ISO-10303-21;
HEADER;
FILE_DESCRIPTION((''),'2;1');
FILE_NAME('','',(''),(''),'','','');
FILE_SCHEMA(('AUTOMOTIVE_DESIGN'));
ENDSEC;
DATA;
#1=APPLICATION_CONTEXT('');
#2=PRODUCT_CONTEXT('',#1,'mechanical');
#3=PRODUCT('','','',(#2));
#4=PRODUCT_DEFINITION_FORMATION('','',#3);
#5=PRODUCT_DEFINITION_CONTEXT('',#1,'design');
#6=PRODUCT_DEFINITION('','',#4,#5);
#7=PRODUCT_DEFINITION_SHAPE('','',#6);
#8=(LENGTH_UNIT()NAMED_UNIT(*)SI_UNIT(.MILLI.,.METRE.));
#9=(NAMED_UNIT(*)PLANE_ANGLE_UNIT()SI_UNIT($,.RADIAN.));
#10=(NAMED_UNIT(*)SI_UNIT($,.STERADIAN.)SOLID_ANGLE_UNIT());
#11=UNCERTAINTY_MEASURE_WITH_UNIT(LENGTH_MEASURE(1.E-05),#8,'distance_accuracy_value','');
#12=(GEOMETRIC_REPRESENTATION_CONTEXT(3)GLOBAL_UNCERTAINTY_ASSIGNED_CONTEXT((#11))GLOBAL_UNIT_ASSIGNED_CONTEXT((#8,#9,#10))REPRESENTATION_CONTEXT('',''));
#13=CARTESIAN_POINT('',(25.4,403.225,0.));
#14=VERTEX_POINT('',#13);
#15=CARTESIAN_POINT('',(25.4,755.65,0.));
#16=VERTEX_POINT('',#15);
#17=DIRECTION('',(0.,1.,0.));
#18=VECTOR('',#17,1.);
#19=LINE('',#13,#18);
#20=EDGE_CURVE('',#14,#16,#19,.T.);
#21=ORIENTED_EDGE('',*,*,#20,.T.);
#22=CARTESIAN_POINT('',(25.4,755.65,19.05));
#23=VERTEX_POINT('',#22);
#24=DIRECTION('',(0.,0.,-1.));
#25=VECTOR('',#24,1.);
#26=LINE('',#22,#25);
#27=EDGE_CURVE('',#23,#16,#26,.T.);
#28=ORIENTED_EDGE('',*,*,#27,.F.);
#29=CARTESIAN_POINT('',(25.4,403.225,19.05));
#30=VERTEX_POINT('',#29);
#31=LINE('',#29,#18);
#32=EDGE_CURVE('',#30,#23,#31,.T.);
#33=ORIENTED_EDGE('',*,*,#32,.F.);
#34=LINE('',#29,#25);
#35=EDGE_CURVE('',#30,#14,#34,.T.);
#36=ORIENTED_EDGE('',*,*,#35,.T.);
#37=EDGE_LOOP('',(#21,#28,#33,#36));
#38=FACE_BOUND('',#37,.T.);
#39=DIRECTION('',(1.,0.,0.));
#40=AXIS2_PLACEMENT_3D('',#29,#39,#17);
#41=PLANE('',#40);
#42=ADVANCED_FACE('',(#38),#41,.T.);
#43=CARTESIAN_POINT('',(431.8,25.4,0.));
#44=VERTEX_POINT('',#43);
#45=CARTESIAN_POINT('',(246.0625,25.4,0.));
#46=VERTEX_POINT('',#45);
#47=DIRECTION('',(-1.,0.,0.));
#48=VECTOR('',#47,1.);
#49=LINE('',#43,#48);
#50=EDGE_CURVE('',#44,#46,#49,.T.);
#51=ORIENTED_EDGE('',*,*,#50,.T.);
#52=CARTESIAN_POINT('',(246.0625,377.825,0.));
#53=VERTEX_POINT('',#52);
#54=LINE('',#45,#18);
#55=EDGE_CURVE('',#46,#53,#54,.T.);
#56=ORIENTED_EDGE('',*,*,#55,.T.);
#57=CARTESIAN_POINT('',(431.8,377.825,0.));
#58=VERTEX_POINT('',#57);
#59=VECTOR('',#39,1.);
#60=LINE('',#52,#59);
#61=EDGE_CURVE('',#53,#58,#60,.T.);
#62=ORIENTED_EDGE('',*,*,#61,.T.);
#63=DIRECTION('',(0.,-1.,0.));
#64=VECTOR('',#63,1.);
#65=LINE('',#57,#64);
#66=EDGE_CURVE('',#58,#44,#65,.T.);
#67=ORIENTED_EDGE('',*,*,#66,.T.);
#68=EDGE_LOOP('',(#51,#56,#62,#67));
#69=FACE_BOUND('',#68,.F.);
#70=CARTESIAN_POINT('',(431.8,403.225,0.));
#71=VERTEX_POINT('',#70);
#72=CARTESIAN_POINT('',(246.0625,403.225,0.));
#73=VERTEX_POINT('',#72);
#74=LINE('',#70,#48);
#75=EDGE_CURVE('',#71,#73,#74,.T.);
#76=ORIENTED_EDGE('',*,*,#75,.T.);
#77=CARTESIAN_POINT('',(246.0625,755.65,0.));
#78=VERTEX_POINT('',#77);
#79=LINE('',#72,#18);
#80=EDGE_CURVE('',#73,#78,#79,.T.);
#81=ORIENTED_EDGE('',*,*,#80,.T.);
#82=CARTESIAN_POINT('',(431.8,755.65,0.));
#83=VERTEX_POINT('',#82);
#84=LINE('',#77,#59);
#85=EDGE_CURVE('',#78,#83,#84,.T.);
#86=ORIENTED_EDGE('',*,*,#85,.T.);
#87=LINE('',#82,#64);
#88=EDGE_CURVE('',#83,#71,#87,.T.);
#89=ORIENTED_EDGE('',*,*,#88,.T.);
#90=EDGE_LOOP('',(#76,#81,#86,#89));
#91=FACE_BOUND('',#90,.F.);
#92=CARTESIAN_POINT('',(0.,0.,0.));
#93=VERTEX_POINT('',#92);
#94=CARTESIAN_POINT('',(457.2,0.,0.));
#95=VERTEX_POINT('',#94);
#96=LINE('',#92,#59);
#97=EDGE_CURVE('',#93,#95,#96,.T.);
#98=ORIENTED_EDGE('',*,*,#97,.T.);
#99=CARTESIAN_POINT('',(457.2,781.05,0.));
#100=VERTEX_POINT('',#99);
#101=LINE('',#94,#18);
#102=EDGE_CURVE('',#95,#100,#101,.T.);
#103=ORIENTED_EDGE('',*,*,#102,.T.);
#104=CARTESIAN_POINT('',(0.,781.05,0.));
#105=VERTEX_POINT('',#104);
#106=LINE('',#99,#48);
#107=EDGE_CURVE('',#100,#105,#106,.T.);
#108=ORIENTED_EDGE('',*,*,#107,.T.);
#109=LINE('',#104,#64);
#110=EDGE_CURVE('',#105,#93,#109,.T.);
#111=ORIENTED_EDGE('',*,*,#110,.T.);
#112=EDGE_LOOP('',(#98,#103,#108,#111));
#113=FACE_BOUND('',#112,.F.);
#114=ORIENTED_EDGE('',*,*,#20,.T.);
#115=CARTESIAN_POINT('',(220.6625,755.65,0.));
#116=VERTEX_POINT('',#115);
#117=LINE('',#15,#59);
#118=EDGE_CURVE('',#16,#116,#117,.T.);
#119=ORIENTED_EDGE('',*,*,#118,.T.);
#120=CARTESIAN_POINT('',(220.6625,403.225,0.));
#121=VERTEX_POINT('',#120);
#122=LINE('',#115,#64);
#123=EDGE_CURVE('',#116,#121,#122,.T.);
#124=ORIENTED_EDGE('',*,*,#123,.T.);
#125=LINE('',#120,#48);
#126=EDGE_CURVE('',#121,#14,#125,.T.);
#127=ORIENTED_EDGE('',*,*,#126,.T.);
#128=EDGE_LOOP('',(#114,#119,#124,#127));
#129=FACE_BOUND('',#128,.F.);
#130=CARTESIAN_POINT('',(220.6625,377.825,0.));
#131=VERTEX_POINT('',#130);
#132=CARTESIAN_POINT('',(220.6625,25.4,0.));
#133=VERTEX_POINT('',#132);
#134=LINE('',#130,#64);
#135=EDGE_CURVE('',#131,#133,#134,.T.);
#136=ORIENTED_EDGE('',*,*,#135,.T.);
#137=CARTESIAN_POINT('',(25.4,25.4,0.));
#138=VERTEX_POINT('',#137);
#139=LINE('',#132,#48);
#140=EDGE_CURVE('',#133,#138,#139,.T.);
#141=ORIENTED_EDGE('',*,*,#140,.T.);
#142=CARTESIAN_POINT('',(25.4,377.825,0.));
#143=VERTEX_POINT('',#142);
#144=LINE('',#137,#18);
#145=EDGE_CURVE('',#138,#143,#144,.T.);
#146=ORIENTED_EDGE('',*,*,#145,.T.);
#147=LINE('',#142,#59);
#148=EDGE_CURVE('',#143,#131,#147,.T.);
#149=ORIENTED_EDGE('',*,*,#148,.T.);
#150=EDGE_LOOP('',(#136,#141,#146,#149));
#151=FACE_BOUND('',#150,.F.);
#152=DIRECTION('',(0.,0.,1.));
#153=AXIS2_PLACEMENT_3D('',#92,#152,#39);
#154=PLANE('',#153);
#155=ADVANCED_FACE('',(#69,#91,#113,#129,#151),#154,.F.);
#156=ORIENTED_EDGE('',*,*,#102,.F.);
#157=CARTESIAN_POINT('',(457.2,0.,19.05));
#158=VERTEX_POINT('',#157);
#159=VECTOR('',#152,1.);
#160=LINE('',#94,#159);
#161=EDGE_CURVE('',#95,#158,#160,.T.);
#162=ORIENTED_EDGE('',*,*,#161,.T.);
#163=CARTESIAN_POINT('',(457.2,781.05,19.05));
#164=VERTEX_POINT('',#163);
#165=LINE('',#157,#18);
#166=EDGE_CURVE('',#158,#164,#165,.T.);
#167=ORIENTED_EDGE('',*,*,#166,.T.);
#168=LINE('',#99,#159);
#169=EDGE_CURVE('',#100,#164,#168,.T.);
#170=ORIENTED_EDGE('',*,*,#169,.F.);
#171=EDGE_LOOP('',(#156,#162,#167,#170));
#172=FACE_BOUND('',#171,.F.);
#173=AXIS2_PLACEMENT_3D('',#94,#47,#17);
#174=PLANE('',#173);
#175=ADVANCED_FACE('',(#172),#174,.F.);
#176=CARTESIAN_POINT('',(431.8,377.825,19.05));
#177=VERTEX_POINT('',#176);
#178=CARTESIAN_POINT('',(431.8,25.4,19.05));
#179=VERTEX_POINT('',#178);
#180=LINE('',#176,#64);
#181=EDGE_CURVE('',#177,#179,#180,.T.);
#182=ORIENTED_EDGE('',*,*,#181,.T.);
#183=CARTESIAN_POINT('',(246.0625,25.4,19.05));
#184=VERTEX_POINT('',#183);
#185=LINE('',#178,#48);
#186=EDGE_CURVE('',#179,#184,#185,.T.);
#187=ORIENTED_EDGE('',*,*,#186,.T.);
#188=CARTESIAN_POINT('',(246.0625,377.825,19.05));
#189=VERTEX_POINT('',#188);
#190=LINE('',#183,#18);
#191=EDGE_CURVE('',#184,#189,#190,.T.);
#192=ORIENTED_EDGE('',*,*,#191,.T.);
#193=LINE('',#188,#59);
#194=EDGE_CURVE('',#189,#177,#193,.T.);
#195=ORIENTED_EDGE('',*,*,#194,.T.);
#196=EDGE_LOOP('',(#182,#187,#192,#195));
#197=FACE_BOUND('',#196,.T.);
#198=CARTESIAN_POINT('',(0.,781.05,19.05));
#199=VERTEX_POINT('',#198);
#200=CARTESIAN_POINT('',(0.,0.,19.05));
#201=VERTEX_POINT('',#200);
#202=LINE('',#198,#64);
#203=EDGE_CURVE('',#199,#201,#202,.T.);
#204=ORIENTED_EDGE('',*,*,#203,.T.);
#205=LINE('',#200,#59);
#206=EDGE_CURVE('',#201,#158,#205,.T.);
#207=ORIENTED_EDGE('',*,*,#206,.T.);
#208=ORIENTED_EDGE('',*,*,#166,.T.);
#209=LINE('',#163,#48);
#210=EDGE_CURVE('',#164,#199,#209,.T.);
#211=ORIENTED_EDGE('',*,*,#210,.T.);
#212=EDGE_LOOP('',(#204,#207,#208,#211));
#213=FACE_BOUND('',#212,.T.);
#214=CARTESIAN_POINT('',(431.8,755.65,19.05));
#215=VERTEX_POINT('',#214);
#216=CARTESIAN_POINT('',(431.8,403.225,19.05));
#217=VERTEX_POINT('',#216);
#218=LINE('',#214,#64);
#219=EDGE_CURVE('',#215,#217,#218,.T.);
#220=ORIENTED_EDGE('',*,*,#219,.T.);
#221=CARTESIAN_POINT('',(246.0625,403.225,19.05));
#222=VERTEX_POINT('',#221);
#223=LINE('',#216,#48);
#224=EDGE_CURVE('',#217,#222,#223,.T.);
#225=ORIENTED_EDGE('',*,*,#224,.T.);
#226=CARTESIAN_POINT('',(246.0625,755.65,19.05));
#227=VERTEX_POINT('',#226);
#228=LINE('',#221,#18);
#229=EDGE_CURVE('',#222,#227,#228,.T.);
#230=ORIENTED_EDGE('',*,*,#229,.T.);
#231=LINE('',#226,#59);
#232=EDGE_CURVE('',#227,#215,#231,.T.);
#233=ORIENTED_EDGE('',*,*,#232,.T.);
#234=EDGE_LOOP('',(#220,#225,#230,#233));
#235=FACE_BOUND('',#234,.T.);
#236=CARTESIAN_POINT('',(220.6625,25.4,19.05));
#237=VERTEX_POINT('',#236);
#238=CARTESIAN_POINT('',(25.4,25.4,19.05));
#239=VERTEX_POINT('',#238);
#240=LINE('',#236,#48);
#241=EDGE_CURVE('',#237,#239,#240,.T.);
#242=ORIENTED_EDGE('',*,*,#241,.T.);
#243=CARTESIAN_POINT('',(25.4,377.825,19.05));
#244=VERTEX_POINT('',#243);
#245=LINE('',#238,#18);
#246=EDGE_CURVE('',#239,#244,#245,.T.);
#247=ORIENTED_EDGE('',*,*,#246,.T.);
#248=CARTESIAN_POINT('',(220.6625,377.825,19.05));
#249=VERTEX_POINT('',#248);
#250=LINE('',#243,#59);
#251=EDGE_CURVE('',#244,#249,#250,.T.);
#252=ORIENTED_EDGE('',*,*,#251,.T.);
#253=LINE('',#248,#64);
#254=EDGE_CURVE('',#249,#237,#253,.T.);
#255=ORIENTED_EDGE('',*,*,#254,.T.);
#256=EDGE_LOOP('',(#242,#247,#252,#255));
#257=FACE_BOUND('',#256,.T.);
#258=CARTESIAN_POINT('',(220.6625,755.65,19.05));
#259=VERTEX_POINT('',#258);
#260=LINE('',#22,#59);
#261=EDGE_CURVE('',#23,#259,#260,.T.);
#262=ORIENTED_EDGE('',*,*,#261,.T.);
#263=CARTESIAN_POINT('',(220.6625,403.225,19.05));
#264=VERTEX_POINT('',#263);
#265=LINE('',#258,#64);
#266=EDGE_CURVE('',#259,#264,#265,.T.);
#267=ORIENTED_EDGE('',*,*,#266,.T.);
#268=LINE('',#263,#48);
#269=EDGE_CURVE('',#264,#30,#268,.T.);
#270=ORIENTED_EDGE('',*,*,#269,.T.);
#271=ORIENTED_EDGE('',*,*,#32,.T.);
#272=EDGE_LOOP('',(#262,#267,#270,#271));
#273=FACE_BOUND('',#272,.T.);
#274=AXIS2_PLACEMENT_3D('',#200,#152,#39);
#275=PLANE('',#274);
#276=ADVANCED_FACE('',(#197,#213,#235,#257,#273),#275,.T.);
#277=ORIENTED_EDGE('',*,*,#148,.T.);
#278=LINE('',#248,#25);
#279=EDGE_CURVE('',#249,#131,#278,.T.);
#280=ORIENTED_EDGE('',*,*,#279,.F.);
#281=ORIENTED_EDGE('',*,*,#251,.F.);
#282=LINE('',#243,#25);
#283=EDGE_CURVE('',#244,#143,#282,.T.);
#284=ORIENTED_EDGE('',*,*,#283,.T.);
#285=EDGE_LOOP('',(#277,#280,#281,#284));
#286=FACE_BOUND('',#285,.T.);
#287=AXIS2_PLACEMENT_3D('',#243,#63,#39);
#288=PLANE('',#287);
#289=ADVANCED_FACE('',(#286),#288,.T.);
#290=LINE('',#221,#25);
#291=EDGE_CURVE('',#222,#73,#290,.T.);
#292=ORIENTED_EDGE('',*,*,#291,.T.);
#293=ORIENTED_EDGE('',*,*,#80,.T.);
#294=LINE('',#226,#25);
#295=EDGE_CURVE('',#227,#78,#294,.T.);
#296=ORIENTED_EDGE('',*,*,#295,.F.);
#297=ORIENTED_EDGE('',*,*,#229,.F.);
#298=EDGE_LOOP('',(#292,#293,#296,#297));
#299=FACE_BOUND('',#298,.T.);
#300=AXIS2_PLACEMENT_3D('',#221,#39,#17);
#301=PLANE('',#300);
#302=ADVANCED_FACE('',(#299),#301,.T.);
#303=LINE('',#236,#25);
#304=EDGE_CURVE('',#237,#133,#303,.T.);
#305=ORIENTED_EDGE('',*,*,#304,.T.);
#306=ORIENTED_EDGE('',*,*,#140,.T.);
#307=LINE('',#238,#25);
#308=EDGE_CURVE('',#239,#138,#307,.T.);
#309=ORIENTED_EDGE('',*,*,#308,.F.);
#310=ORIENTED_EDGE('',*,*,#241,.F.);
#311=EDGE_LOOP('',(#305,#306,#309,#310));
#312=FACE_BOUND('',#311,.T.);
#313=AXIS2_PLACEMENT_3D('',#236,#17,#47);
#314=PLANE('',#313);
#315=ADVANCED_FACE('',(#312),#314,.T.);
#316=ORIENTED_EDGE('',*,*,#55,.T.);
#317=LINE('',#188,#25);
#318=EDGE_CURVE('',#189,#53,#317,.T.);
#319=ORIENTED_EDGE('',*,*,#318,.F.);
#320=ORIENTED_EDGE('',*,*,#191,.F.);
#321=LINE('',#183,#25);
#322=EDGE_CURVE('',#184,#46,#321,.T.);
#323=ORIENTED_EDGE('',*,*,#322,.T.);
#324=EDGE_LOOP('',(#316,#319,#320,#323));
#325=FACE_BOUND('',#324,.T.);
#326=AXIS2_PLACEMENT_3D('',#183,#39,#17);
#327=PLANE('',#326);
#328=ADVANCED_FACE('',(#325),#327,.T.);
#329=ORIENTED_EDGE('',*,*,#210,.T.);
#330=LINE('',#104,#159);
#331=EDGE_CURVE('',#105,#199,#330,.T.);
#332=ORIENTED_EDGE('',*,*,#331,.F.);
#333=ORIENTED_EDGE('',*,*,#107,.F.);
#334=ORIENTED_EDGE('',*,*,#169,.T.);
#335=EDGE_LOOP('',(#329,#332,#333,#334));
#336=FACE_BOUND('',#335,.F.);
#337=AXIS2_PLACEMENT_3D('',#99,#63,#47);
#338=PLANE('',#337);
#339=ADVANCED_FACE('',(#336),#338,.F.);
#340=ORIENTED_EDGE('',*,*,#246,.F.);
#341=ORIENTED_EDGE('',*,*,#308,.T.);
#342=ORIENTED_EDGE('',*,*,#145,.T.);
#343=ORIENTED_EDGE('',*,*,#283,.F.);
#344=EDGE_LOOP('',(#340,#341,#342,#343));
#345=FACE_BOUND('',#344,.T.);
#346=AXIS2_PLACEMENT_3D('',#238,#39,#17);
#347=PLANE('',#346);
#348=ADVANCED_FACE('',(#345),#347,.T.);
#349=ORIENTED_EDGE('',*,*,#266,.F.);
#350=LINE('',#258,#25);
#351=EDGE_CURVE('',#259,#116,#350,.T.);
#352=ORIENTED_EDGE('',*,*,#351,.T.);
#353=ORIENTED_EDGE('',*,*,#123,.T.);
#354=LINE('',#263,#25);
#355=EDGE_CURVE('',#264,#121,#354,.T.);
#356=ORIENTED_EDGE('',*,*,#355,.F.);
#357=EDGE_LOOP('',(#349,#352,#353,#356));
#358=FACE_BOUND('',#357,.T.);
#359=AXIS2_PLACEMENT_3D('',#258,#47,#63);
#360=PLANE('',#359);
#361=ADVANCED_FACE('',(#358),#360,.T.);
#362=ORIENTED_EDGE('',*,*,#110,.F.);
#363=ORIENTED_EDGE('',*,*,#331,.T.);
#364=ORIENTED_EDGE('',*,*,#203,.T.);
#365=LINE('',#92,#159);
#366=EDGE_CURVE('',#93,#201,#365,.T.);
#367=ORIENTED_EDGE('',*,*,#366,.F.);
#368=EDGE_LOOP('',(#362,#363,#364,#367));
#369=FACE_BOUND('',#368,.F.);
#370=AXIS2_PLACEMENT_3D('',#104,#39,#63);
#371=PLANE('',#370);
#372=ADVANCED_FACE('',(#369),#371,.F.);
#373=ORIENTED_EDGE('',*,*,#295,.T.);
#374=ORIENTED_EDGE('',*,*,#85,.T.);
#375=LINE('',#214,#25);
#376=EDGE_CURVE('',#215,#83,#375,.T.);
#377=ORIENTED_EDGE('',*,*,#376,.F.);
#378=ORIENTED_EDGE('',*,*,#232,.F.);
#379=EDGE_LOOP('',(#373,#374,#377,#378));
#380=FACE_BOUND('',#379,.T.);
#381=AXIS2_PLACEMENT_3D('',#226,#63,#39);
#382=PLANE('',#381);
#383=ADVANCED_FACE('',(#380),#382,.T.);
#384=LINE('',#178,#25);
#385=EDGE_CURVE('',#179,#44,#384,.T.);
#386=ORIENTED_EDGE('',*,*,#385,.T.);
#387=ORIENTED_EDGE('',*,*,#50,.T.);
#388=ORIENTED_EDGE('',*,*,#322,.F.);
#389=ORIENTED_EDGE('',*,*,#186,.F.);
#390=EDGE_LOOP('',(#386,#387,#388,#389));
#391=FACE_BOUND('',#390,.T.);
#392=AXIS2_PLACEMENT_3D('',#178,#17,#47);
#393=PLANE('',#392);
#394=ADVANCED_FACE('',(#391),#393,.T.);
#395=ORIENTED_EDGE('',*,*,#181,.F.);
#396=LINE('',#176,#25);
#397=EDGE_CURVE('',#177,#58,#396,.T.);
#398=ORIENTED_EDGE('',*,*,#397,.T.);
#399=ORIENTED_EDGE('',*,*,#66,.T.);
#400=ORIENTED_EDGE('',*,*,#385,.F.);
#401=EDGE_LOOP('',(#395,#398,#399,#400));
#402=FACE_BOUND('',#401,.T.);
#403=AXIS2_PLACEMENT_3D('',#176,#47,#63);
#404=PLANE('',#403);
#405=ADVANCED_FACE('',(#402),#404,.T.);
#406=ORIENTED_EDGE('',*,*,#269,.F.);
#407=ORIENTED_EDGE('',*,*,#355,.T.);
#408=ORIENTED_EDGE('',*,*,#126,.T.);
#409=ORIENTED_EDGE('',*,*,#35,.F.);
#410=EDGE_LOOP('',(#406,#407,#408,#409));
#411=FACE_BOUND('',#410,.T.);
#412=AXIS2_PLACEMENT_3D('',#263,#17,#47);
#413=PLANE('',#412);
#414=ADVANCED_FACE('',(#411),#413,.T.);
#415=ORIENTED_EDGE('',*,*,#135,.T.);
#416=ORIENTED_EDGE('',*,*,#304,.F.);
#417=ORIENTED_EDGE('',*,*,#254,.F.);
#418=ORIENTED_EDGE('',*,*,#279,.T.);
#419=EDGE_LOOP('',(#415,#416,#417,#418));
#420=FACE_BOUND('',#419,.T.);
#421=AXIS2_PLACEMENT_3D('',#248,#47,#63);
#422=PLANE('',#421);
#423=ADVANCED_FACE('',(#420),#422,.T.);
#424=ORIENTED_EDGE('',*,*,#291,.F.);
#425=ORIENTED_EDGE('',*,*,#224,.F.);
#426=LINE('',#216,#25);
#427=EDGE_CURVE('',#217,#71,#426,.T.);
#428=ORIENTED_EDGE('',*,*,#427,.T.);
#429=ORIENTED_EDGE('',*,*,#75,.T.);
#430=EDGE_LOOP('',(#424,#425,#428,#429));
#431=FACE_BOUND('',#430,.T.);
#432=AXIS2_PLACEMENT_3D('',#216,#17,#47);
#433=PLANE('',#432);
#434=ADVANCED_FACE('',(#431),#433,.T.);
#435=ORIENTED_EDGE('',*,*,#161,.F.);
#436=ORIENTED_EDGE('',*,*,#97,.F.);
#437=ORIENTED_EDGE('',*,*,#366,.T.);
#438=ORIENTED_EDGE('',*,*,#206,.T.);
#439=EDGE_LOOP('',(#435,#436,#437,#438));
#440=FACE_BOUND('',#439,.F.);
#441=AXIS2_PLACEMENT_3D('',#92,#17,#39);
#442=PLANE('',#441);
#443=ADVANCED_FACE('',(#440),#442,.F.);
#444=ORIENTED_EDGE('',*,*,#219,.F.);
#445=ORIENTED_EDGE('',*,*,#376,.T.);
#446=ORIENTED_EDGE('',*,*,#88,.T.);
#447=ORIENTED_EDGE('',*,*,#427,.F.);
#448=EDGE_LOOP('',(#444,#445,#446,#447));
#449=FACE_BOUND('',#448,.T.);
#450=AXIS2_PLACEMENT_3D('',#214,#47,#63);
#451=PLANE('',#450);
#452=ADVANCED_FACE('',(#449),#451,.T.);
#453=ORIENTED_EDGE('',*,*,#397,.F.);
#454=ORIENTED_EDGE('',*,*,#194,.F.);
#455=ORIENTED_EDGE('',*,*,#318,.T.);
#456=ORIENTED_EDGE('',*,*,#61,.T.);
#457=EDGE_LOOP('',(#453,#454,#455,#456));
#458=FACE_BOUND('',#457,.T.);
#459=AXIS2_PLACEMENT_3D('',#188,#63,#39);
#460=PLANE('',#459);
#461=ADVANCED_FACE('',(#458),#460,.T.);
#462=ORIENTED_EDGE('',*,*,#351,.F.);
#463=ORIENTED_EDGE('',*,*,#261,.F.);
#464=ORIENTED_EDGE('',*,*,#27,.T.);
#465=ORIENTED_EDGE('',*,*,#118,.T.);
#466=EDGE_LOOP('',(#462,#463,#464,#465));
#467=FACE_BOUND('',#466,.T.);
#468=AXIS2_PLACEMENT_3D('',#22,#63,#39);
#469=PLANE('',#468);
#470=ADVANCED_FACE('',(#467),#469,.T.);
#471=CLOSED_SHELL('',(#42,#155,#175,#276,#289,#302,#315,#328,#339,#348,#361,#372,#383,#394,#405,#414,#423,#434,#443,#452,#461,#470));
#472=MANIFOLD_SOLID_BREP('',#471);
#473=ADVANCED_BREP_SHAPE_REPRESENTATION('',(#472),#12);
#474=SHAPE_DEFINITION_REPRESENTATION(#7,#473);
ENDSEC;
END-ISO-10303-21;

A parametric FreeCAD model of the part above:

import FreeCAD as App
import Part
import Sketcher

V = App.Vector
Q = App.Units.Quantity


def add_polygon(sketch, points):
    """Adds a closed chain of lines whose ends are joined by coincident constraints."""
    first, n = sketch.GeometryCount, len(points)
    for a, b in zip(points, points[1:] + points[:1]):
        sketch.addGeometry(Part.LineSegment(App.Vector(*a, 0), App.Vector(*b, 0)), False)
    for i in range(n):
        sketch.addConstraint(Sketcher.Constraint("Coincident", first + i, 2, first + (i + 1) % n, 1))

doc = App.newDocument("Part")
body = doc.addObject("PartDesign::Body", "Body")

# Sketch on XY plane
sketch1 = body.newObject("Sketcher::SketchObject", "Sketch")
sketch1.AttachmentSupport = (doc.getObject("XY_Plane"), [""])
sketch1.MapMode = "FlatFace"
add_polygon(sketch1, [(0, 781), (0, 0), (457, 0), (457, 781)])  # lines 0-3
sketch1.addConstraint([
    Sketcher.Constraint("Vertical", 0),
    Sketcher.Constraint("Horizontal", 1),
    Sketcher.Constraint("Vertical", 2),
    Sketcher.Constraint("Horizontal", 3),
    Sketcher.Constraint("Coincident", 0, 2, -1, 1),
    Sketcher.Constraint("DistanceX", 1, 1, 1, 2, Q("18 in")),
    Sketcher.Constraint("DistanceY", 0, 2, 0, 1, Q("30.75 in")),
])
pad1 = body.newObject("PartDesign::Pad", "Pad")
pad1.Profile = sketch1
pad1.Length = Q("0.75 in")

# Sketch on XY plane
sketch2 = body.newObject("Sketcher::SketchObject", "Sketch001")
sketch2.AttachmentSupport = (doc.getObject("XY_Plane"), [""])
sketch2.MapMode = "FlatFace"
sketch2.AttachmentOffset = App.Placement(V(0, 0, 0.75 * 25.4), App.Rotation())
add_polygon(sketch2, [(221, 756), (25, 756), (25, 403), (221, 403)])  # lines 0-3
add_polygon(sketch2, [(432, 756), (246, 756), (246, 403), (432, 403)])  # lines 4-7
add_polygon(sketch2, [(221, 378), (25, 378), (25, 25), (221, 25)])  # lines 8-11
add_polygon(sketch2, [(432, 378), (246, 378), (246, 25), (432, 25)])  # lines 12-15
sketch2.addConstraint([
    Sketcher.Constraint("Horizontal", 0),
    Sketcher.Constraint("Vertical", 1),
    Sketcher.Constraint("Horizontal", 2),
    Sketcher.Constraint("Vertical", 3),
    Sketcher.Constraint("Horizontal", 4),
    Sketcher.Constraint("Vertical", 5),
    Sketcher.Constraint("Horizontal", 6),
    Sketcher.Constraint("Vertical", 7),
    Sketcher.Constraint("Horizontal", 8),
    Sketcher.Constraint("Vertical", 9),
    Sketcher.Constraint("Horizontal", 10),
    Sketcher.Constraint("Vertical", 11),
    Sketcher.Constraint("Horizontal", 12),
    Sketcher.Constraint("Vertical", 13),
    Sketcher.Constraint("Horizontal", 14),
    Sketcher.Constraint("Vertical", 15),
    Sketcher.Constraint("Horizontal", 3, 2, 4, 2),
    Sketcher.Constraint("Horizontal", 2, 2, 5, 2),
    Sketcher.Constraint("Horizontal", 11, 2, 12, 2),
    Sketcher.Constraint("Horizontal", 10, 2, 13, 2),
    Sketcher.Constraint("Vertical", 1, 2, 8, 2),
    Sketcher.Constraint("Vertical", 3, 2, 10, 2),
    Sketcher.Constraint("Vertical", 5, 2, 12, 2),
    Sketcher.Constraint("Vertical", 7, 2, 14, 2),
    Sketcher.Constraint("Equal", 7, 9),
    Sketcher.Constraint("DistanceX", -1, 1, 0, 2, Q("1 in")),
    Sketcher.Constraint("DistanceY", -1, 1, 9, 2, Q("1 in")),
    Sketcher.Constraint("DistanceX", 3, 2, 4, 2, Q("1 in")),
    Sketcher.Constraint("DistanceY", 8, 2, 1, 2, Q("1 in")),
    Sketcher.Constraint("DistanceX", 0, 2, 0, 1, Q("7.6875 in")),
    Sketcher.Constraint("DistanceX", 4, 2, 4, 1, Q("7.3125 in")),
    Sketcher.Constraint("DistanceY", 1, 2, 1, 1, Q("13.875 in")),
])
pocket1 = body.newObject("PartDesign::Pocket", "Pocket")
pocket1.Profile = sketch2
pocket1.Length = Q("0.75 in")

doc.recompute()
